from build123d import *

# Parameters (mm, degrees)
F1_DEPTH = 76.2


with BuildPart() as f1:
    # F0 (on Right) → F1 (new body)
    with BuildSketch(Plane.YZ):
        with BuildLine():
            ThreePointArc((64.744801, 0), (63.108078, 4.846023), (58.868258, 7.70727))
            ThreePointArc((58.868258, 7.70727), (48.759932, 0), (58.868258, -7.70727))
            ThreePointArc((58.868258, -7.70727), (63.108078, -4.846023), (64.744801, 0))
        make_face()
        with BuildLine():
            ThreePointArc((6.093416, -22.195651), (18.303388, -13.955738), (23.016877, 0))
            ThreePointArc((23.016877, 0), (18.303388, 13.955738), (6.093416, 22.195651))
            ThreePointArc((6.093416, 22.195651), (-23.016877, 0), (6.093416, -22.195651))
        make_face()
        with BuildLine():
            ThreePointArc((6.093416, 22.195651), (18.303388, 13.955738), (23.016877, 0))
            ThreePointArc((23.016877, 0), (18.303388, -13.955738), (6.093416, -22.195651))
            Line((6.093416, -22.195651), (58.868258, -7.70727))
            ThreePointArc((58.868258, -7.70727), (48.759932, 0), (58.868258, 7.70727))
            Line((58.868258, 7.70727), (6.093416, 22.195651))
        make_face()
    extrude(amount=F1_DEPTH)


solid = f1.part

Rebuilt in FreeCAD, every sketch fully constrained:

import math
import FreeCAD as App
import Part
import Sketcher
Q = App.Units.Quantity

doc = App.newDocument("Part")
body = doc.addObject("PartDesign::Body", "Body")

# Sketch on YZ plane
sketch1 = body.newObject("Sketcher::SketchObject", "Sketch")
sketch1.AttachmentSupport = (doc.getObject("YZ_Plane"), [""])
sketch1.MapMode = "FlatFace"
sketch1.addGeometry([
    Part.ArcOfCircle(Part.Circle(App.Vector(57, 0, 0), App.Vector(0, 0, 1), 8), math.radians(0), math.radians(75)),  # 0
    Part.LineSegment(App.Vector(59, 8, 0), App.Vector(6, 22, 0)),  # 1
    Part.ArcOfCircle(Part.Circle(App.Vector(0, 0, 0), App.Vector(0, 0, 1), 23), math.radians(75), math.radians(285)),  # 2
    Part.LineSegment(App.Vector(6, -22, 0), App.Vector(59, -8, 0)),  # 3
    Part.ArcOfCircle(Part.Circle(App.Vector(57, 0, 0), App.Vector(0, 0, 1), 8), math.radians(-75), math.radians(0)),  # 4
], False)
sketch1.addConstraint([
    Sketcher.Constraint("Tangent", 0, 2, 1, 1),
    Sketcher.Constraint("Tangent", 1, 2, 2, 1),
    Sketcher.Constraint("Tangent", 2, 2, 3, 1),
    Sketcher.Constraint("Tangent", 3, 2, 4, 1),
    Sketcher.Constraint("Tangent", 4, 2, 0, 1),
    Sketcher.Constraint("Coincident", 2, 3, -1, 1),
    Sketcher.Constraint("Equal", 0, 4),
    Sketcher.Constraint("PointOnObject", 0, 3, -1),
    Sketcher.Constraint("PointOnObject", 4, 2, -1),
    Sketcher.Constraint("Radius", 0, 7.992435),
    Sketcher.Constraint("Radius", 2, 23.016877),
    Sketcher.Constraint("DistanceX", -1, 1, 4, 2, 64.744801),
])
pad1 = body.newObject("PartDesign::Pad", "Pad")
pad1.Profile = sketch1
pad1.Length = Q("3 in")

doc.recompute()
